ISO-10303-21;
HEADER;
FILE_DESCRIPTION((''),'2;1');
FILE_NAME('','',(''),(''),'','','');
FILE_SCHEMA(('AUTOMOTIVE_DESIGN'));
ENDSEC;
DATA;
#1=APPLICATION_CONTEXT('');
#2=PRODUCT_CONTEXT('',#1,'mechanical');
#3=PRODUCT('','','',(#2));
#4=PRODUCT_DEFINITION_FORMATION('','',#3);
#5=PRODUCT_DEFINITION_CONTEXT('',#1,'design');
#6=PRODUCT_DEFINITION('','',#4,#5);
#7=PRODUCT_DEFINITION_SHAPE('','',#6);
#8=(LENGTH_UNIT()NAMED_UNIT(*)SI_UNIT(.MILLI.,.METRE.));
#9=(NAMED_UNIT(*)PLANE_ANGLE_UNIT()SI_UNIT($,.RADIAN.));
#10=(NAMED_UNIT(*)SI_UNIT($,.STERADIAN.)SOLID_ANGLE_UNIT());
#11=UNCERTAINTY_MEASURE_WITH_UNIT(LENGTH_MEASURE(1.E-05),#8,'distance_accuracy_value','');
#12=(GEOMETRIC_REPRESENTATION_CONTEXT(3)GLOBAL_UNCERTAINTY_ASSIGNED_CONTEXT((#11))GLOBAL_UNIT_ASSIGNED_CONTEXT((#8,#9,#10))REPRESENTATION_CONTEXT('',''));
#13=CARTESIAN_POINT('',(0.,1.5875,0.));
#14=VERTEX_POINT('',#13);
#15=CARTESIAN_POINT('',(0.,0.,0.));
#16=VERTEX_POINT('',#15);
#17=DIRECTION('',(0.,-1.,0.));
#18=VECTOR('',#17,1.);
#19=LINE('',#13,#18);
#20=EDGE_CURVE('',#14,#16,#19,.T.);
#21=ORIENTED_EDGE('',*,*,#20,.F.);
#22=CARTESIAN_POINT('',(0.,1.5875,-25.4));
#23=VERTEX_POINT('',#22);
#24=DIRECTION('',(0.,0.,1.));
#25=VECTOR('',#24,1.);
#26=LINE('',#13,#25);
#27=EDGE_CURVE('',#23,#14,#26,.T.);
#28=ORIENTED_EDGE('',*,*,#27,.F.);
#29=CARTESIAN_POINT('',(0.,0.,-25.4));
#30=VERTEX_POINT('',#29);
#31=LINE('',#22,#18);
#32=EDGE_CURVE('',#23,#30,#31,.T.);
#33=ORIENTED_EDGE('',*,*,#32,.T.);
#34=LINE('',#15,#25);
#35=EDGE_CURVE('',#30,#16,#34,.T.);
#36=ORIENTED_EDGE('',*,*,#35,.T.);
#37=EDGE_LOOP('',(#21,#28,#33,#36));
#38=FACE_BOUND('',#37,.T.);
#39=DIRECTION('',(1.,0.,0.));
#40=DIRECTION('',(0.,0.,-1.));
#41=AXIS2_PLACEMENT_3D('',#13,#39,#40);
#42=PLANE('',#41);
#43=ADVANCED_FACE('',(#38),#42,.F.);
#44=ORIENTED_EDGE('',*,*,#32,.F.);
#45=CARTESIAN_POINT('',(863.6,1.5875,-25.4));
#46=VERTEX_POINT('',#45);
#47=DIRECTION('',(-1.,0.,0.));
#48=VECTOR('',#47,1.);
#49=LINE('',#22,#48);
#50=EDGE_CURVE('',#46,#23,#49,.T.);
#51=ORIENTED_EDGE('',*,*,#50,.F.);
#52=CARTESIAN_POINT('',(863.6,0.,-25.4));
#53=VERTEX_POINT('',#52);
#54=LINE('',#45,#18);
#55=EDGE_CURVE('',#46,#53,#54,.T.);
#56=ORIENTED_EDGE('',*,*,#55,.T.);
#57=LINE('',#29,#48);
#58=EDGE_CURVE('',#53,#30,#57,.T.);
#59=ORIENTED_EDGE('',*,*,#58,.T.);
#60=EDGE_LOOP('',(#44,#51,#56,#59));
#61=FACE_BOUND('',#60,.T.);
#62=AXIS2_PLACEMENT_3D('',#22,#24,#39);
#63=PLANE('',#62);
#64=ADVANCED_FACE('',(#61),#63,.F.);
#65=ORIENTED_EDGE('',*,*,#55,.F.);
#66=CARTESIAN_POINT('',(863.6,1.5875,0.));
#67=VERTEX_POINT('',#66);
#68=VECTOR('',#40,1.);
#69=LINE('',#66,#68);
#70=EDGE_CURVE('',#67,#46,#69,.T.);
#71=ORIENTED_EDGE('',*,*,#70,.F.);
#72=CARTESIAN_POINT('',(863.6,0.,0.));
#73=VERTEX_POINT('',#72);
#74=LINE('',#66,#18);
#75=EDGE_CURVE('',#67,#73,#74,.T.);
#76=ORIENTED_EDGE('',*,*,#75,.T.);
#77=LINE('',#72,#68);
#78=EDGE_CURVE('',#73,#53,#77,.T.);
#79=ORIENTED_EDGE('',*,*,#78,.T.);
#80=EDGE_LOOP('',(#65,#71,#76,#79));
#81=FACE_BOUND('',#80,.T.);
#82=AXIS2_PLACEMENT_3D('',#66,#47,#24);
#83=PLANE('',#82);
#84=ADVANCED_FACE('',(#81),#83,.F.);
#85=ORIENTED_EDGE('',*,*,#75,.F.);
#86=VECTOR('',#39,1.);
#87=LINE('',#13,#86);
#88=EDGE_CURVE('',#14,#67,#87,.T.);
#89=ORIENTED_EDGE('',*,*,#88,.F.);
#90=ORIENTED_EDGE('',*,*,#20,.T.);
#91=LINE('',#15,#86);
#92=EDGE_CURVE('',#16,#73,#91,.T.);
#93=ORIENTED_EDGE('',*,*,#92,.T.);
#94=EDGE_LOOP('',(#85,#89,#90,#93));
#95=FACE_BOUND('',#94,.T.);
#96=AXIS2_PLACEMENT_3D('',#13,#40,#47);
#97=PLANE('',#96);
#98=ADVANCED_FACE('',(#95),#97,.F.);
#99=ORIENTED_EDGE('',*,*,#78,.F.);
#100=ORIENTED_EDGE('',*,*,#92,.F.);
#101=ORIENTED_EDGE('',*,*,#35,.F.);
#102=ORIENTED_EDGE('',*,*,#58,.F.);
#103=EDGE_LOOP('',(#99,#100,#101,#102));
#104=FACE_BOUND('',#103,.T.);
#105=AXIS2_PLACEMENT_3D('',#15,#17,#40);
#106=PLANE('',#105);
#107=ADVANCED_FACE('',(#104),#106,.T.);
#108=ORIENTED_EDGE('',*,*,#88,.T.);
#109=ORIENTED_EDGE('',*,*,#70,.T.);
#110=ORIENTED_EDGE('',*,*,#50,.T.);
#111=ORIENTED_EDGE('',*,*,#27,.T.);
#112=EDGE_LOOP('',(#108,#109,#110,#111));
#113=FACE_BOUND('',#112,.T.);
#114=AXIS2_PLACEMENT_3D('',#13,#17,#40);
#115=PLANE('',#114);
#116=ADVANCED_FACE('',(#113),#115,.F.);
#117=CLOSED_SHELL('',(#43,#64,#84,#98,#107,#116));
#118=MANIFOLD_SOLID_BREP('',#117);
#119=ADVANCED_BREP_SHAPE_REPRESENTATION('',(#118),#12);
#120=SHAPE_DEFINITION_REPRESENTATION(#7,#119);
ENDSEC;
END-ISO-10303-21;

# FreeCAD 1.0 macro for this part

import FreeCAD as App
import Part
import Sketcher
from FreeCAD import Vector
Q = App.Units.Quantity


def add_polygon(sketch, points):
    """Adds a closed chain of lines whose ends are joined by coincident constraints."""
    first, n = sketch.GeometryCount, len(points)
    for a, b in zip(points, points[1:] + points[:1]):
        sketch.addGeometry(Part.LineSegment(App.Vector(*a, 0), App.Vector(*b, 0)), False)
    for i in range(n):
        sketch.addConstraint(Sketcher.Constraint("Coincident", first + i, 2, first + (i + 1) % n, 1))

doc = App.newDocument("Part")
body = doc.addObject("PartDesign::Body", "Body")

# Sketch on XZ plane
sketch1 = body.newObject("Sketcher::SketchObject", "Sketch")
sketch1.AttachmentSupport = (doc.getObject("XZ_Plane"), [""])
sketch1.MapMode = "FlatFace"
add_polygon(sketch1, [(0, -25.4), (0, 0), (863.6, 0), (863.6, -25.4)])  # lines 0-3
sketch1.addConstraint(Sketcher.Constraint("Vertical", 0))
sketch1.addConstraint(Sketcher.Constraint("Horizontal", 1))
sketch1.addConstraint(Sketcher.Constraint("Vertical", 2))
sketch1.addConstraint(Sketcher.Constraint("Horizontal", 3))
sketch1.addConstraint(Sketcher.Constraint("Coincident", 0, 2, -1, 1))
sketch1.addConstraint(Sketcher.Constraint("DistanceX", 1, 1, 1, 2, Q("34 in")))
sketch1.addConstraint(Sketcher.Constraint("DistanceY", 0, 1, 0, 2, Q("1 in")))
pad1 = body.newObject("PartDesign::Pad", "Pad")
pad1.Profile = sketch1
pad1.Length = Q("0.0625 in")
pad1.Reversed = True

doc.recompute()
